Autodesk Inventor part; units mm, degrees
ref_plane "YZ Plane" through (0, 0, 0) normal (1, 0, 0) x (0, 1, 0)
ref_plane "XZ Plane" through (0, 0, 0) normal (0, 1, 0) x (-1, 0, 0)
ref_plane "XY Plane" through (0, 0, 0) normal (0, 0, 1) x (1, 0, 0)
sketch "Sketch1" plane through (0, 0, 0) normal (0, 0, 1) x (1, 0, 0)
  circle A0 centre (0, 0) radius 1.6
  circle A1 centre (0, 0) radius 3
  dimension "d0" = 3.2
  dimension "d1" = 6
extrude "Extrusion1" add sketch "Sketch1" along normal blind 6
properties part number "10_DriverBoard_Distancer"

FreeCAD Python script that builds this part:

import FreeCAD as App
import Part
import Sketcher
from FreeCAD import Vector

doc = App.newDocument("Part")
body = doc.addObject("PartDesign::Body", "Body")

# Sketch on XY plane
sketch1 = body.newObject("Sketcher::SketchObject", "Sketch")
sketch1.AttachmentSupport = (doc.getObject("XY_Plane"), [""])
sketch1.MapMode = "FlatFace"
sketch1.addGeometry(Part.Circle(Vector(0, 0, 0), Vector(0, 0, 1), 3), False)
sketch1.addGeometry(Part.Circle(Vector(0, 0, 0), Vector(0, 0, 1), 1.6), False)
sketch1.addConstraint(Sketcher.Constraint("Coincident", 0, 3, -1, 1))
sketch1.addConstraint(Sketcher.Constraint("Coincident", 1, 3, -1, 1))
sketch1.addConstraint(Sketcher.Constraint("Diameter", 0, 6.0))
sketch1.addConstraint(Sketcher.Constraint("Diameter", 1, 3.2))
pad1 = body.newObject("PartDesign::Pad", "Pad")
pad1.Profile = sketch1
pad1.Length = 6

doc.recompute()
